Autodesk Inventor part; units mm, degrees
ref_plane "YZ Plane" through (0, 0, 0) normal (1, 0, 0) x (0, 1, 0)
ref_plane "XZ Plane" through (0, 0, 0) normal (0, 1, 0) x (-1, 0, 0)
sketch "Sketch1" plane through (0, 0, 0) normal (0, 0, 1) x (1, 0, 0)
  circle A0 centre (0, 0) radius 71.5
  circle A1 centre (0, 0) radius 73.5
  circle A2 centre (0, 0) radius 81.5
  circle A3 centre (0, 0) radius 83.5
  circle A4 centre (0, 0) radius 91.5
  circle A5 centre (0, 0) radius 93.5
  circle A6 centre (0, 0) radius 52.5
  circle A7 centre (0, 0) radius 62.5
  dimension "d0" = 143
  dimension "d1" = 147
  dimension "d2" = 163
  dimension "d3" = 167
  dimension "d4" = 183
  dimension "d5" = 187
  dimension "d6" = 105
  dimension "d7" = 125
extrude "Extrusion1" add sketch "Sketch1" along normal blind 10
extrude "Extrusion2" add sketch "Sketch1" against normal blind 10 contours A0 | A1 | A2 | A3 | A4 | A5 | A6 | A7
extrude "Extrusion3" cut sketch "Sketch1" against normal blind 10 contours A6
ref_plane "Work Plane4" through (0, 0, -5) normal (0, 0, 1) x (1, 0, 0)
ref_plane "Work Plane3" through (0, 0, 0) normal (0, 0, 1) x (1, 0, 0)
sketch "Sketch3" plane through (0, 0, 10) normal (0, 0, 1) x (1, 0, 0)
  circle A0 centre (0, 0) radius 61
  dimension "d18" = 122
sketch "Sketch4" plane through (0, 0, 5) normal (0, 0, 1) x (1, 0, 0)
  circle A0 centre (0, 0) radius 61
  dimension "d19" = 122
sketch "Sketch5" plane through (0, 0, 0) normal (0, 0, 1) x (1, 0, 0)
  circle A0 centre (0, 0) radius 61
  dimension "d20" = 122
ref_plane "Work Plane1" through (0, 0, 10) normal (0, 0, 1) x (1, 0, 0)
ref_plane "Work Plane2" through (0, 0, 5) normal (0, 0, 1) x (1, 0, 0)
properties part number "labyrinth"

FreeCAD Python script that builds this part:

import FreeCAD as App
import Part
import Sketcher

V = App.Vector
Q = App.Units.Quantity

doc = App.newDocument("Part")
params = doc.addObject("Spreadsheet::Sheet", "Params")
for row, (alias, value) in enumerate([
    ("sketch1_diameter", "147 mm"),
    ("sketch1_diameter2", "143 mm"),
    ("sketch1_diameter3", "167 mm"),
    ("sketch1_diameter4", "163 mm"),
    ("sketch1_diameter5", "187 mm"),
    ("pad1_length", "10 mm"),
    ("sketch2_diameter", "187 mm"),
    ("pad2_length", "10 mm"),
    ("sketch3_diameter", "105 mm"),
    ("pocket1_length", "10 mm"),
], start=1):
    params.set(f"A{row}", alias)
    params.set(f"B{row}", "=" + value)
    params.setAlias(f"B{row}", alias)

body = doc.addObject("PartDesign::Body", "Body")
body.AllowCompound = True

# Sketch on XY plane
sketch1 = body.newObject("Sketcher::SketchObject", "Sketch")
sketch1.AttachmentSupport = (doc.getObject("XY_Plane"), [""])
sketch1.MapMode = "FlatFace"
sketch1.addGeometry([
    Part.Circle(V(0, 0, 0), V(0, 0, 1), 74),  # 0
    Part.Circle(V(0, 0, 0), V(0, 0, 1), 72),  # 1
    Part.Circle(V(0, 0, 0), V(0, 0, 1), 84),  # 2
    Part.Circle(V(0, 0, 0), V(0, 0, 1), 82),  # 3
    Part.Circle(V(0, 0, 0), V(0, 0, 1), 94),  # 4
    Part.Circle(V(0, 0, 0), V(0, 0, 1), 92),  # 5
    Part.Circle(V(0, 0, 0), V(0, 0, 1), 62),  # 6
    Part.Circle(V(0, 0, 0), V(0, 0, 1), 52),  # 7
], False)
sketch1.addConstraint([
    Sketcher.Constraint("Coincident", 0, 3, -1, 1),
    Sketcher.Constraint("Coincident", 1, 3, -1, 1),
    Sketcher.Constraint("Coincident", 2, 3, -1, 1),
    Sketcher.Constraint("Coincident", 3, 3, -1, 1),
    Sketcher.Constraint("Coincident", 4, 3, -1, 1),
    Sketcher.Constraint("Coincident", 5, 3, -1, 1),
    Sketcher.Constraint("Coincident", 6, 3, -1, 1),
    Sketcher.Constraint("Coincident", 7, 3, -1, 1),
    Sketcher.Constraint("Diameter", 0, Q("147 mm")),
    Sketcher.Constraint("Diameter", 1, Q("143 mm")),
    Sketcher.Constraint("Diameter", 2, Q("167 mm")),
    Sketcher.Constraint("Diameter", 3, Q("163 mm")),
    Sketcher.Constraint("Diameter", 4, Q("187 mm")),
    Sketcher.Constraint("Diameter", 5, Q("183 mm")),
    Sketcher.Constraint("Diameter", 6, Q("125 mm")),
    Sketcher.Constraint("Diameter", 7, Q("105 mm")),
])
sketch1.setExpression("Constraints[8]", "Params.sketch1_diameter")
sketch1.setExpression("Constraints[9]", "Params.sketch1_diameter2")
sketch1.setExpression("Constraints[10]", "Params.sketch1_diameter3")
sketch1.setExpression("Constraints[11]", "Params.sketch1_diameter4")
sketch1.setExpression("Constraints[12]", "Params.sketch1_diameter5")
pad1 = body.newObject("PartDesign::Pad", "Pad")
pad1.Profile = sketch1
pad1.setExpression("Length", "Params.pad1_length")

# Sketch on XY plane
sketch2 = body.newObject("Sketcher::SketchObject", "Sketch001")
sketch2.AttachmentSupport = (doc.getObject("XY_Plane"), [""])
sketch2.MapMode = "FlatFace"
sketch2.addGeometry(Part.Circle(V(0, 0, 0), V(0, 0, 1), 94), False)
sketch2.addConstraint([
    Sketcher.Constraint("Coincident", 0, 3, -1, 1),
    Sketcher.Constraint("Diameter", 0, Q("187 mm")),
])
sketch2.setExpression("Constraints[1]", "Params.sketch2_diameter")
pad2 = body.newObject("PartDesign::Pad", "Pad001")
pad2.Profile = sketch2
pad2.setExpression("Length", "Params.pad2_length")
pad2.Reversed = True

# Sketch on XY plane
sketch3 = body.newObject("Sketcher::SketchObject", "Sketch002")
sketch3.AttachmentSupport = (doc.getObject("XY_Plane"), [""])
sketch3.MapMode = "FlatFace"
sketch3.addGeometry(Part.Circle(V(0, 0, 0), V(0, 0, 1), 52), False)
sketch3.addConstraint([
    Sketcher.Constraint("Coincident", 0, 3, -1, 1),
    Sketcher.Constraint("Diameter", 0, Q("105 mm")),
])
sketch3.setExpression("Constraints[1]", "Params.sketch3_diameter")
pocket1 = body.newObject("PartDesign::Pocket", "Pocket")
pocket1.Profile = sketch3
pocket1.setExpression("Length", "Params.pocket1_length")

doc.recompute()
